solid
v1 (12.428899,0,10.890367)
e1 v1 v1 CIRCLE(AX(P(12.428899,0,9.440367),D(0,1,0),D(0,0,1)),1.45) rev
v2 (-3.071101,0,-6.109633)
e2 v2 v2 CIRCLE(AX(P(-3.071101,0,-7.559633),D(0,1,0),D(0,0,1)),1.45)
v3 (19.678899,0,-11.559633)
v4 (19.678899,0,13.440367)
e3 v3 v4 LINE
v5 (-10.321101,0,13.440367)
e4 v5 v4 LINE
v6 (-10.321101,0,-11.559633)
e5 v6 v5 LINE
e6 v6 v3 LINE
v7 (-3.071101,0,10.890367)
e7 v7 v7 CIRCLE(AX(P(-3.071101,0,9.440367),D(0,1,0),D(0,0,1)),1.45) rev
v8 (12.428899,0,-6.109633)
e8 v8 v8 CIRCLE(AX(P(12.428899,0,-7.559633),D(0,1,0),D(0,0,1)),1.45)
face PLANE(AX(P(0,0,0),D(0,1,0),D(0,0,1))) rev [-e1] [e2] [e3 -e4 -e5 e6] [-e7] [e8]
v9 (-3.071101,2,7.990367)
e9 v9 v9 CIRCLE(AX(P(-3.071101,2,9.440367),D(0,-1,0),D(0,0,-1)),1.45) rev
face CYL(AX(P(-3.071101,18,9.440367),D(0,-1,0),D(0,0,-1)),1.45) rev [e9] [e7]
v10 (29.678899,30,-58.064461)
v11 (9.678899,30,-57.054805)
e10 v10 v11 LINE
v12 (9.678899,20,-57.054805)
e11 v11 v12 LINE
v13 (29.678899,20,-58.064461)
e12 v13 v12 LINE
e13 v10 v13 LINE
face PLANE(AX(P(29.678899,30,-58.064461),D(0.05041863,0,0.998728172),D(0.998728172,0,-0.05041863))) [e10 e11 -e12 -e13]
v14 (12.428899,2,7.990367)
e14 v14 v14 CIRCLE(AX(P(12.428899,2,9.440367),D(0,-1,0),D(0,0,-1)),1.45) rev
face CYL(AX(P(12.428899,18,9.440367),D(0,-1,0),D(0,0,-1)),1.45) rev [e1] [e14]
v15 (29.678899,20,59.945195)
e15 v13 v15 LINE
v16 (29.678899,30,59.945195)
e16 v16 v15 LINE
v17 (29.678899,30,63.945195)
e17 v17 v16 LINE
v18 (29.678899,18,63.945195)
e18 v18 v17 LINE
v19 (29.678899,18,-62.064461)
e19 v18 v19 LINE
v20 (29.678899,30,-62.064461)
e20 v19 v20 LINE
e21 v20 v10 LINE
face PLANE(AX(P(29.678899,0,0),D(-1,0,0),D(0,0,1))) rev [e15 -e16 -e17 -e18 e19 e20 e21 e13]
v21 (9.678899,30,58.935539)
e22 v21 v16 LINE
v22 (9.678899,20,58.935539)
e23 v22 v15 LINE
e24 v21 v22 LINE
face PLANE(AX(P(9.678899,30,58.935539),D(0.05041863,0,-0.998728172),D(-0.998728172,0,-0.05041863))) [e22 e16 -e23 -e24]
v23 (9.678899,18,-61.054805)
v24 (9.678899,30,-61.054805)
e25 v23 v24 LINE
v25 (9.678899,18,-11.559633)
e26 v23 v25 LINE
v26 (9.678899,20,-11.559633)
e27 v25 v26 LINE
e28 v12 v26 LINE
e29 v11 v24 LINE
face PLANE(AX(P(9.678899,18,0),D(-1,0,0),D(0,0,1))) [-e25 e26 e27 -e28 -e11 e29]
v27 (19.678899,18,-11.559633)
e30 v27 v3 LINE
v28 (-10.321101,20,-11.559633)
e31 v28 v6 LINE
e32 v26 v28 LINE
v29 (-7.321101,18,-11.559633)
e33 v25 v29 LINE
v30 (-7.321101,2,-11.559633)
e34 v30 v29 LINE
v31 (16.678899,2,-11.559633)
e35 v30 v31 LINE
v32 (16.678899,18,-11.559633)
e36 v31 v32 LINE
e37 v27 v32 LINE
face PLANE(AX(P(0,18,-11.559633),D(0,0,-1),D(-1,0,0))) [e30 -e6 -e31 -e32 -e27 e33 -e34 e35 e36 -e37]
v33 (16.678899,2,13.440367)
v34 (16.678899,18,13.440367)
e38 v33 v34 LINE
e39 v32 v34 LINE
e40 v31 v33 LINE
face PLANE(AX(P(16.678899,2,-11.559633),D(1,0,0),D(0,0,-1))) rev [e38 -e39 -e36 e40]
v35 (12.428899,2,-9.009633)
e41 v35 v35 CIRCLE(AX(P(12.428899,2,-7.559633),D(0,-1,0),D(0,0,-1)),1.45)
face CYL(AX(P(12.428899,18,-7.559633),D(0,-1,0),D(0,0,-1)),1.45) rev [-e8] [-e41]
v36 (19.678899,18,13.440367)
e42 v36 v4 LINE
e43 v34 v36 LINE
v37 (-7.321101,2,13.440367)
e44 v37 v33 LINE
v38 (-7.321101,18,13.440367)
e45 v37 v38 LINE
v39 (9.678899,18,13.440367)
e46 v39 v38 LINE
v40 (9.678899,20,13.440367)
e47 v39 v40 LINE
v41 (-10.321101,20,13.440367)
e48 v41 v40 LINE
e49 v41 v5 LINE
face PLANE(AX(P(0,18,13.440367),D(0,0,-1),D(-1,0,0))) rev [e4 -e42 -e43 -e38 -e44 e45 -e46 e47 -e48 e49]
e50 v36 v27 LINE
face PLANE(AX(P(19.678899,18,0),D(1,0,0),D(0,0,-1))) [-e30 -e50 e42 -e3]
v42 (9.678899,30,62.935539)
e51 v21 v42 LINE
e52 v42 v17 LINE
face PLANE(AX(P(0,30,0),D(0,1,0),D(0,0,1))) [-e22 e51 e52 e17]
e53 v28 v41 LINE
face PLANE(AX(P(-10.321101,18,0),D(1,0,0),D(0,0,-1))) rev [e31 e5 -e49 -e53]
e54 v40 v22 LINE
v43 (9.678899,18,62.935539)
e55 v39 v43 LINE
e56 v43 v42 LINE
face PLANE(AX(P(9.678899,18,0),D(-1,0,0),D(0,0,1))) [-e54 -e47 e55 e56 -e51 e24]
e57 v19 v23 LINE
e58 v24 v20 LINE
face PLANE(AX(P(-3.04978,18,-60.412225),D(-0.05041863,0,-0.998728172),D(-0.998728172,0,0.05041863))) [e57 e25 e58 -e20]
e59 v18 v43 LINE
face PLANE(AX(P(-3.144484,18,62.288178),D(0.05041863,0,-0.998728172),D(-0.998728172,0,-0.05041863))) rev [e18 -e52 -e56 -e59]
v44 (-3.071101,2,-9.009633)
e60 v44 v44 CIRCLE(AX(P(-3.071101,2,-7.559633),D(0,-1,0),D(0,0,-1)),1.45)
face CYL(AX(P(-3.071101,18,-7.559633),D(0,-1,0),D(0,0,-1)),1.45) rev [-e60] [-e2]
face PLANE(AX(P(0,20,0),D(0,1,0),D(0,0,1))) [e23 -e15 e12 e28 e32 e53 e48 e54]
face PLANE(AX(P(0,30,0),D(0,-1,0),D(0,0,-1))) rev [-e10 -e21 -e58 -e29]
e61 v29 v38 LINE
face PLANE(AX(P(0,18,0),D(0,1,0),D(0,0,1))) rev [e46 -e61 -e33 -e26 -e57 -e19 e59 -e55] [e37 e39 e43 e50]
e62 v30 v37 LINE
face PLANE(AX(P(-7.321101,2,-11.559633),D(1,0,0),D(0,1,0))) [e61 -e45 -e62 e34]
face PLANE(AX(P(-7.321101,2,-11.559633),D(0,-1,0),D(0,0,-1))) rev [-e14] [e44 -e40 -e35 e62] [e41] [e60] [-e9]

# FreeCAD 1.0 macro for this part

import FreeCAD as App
import Part
import Sketcher
Q = App.Units.Quantity

doc = App.newDocument("Part")
body = doc.addObject("PartDesign::Body", "Body")

# Sketch on XZ plane
sketch1 = body.newObject("Sketcher::SketchObject", "Sketch")
sketch1.AttachmentSupport = (doc.getObject("XZ_Plane"), [""])
sketch1.MapMode = "FlatFace"
sketch1.addGeometry(Part.LineSegment(App.Vector(-10.3, -11.6, 0), App.Vector(-10.3, 13.4, 0)), False)
sketch1.addGeometry(Part.LineSegment(App.Vector(-10.3, 13.4, 0), App.Vector(19.7, 13.4, 0)), False)
sketch1.addGeometry(Part.LineSegment(App.Vector(19.7, 13.4, 0), App.Vector(19.7, -11.6, 0)), False)
sketch1.addGeometry(Part.LineSegment(App.Vector(19.7, -11.6, 0), App.Vector(-10.3, -11.6, 0)), False)
sketch1.addGeometry(Part.Circle(App.Vector(-3.1, 9.4, 0), App.Vector(0, 0, 1), 1.4), False)
sketch1.addGeometry(Part.Circle(App.Vector(12.4, 9.4, 0), App.Vector(0, 0, 1), 1.4), False)
sketch1.addGeometry(Part.Circle(App.Vector(-3.1, -7.6, 0), App.Vector(0, 0, 1), 1.4), False)
sketch1.addGeometry(Part.Circle(App.Vector(12.4, -7.6, 0), App.Vector(0, 0, 1), 1.4), False)
sketch1.addConstraint(Sketcher.Constraint("Coincident", 0, 2, 1, 1))
sketch1.addConstraint(Sketcher.Constraint("Coincident", 1, 2, 2, 1))
sketch1.addConstraint(Sketcher.Constraint("Coincident", 2, 2, 3, 1))
sketch1.addConstraint(Sketcher.Constraint("Coincident", 3, 2, 0, 1))
sketch1.addConstraint(Sketcher.Constraint("Vertical", 0))
sketch1.addConstraint(Sketcher.Constraint("Horizontal", 1))
sketch1.addConstraint(Sketcher.Constraint("Vertical", 2))
sketch1.addConstraint(Sketcher.Constraint("Horizontal", 3))
sketch1.addConstraint(Sketcher.Constraint("Equal", 4, 5))
sketch1.addConstraint(Sketcher.Constraint("Equal", 5, 6))
sketch1.addConstraint(Sketcher.Constraint("Equal", 6, 7))
sketch1.addConstraint(Sketcher.Constraint("Horizontal", 4, 3, 5, 3))
sketch1.addConstraint(Sketcher.Constraint("Horizontal", 6, 3, 7, 3))
sketch1.addConstraint(Sketcher.Constraint("Vertical", 4, 3, 6, 3))
sketch1.addConstraint(Sketcher.Constraint("Vertical", 5, 3, 7, 3))
sketch1.addConstraint(Sketcher.Constraint("Diameter", 4, 2.9))
sketch1.addConstraint(Sketcher.Constraint("DistanceX", 1, 1, 1, 2, 30.0))
sketch1.addConstraint(Sketcher.Constraint("DistanceY", 0, 1, 0, 2, 25.0))
sketch1.addConstraint(Sketcher.Constraint("DistanceY", 6, 3, 4, 3, 17.0))
sketch1.addConstraint(Sketcher.Constraint("DistanceY", 4, 3, 0, 2, 4.0))
sketch1.addConstraint(Sketcher.Constraint("DistanceX", 4, 3, 5, 3, 15.5))
sketch1.addConstraint(Sketcher.Constraint("DistanceX", 0, 2, 4, 3, 7.25))
sketch1.addConstraint(Sketcher.Constraint("DistanceX", 4, 3, -1, 1, 3.071101))
sketch1.addConstraint(Sketcher.Constraint("DistanceY", -1, 1, 4, 3, 9.440367))
pad1 = body.newObject("PartDesign::Pad", "Pad")
pad1.Profile = sketch1
pad1.Length = 18
pad1.Reversed = True

# Sketch on XZ plane
sketch2 = body.newObject("Sketcher::SketchObject", "Sketch001")
sketch2.AttachmentSupport = (doc.getObject("XZ_Plane"), [""])
sketch2.MapMode = "FlatFace"
sketch2.AttachmentOffset = App.Placement(App.Vector(0, 0, -18), App.Rotation())
sketch2.addGeometry(Part.LineSegment(App.Vector(-10, -12, 0), App.Vector(-10, 13, 0)), False)
sketch2.addGeometry(Part.LineSegment(App.Vector(-10, 13, 0), App.Vector(20, 13, 0)), False)
sketch2.addGeometry(Part.LineSegment(App.Vector(20, 13, 0), App.Vector(20, -12, 0)), False)
sketch2.addGeometry(Part.LineSegment(App.Vector(20, -12, 0), App.Vector(-10, -12, 0)), False)
sketch2.addConstraint(Sketcher.Constraint("Coincident", 0, 2, 1, 1))
sketch2.addConstraint(Sketcher.Constraint("Coincident", 1, 2, 2, 1))
sketch2.addConstraint(Sketcher.Constraint("Coincident", 2, 2, 3, 1))
sketch2.addConstraint(Sketcher.Constraint("Coincident", 3, 2, 0, 1))
sketch2.addConstraint(Sketcher.Constraint("Vertical", 0))
sketch2.addConstraint(Sketcher.Constraint("Horizontal", 1))
sketch2.addConstraint(Sketcher.Constraint("Vertical", 2))
sketch2.addConstraint(Sketcher.Constraint("Horizontal", 3))
sketch2.addConstraint(Sketcher.Constraint("DistanceX", 1, 1, 1, 2, 30.0))
sketch2.addConstraint(Sketcher.Constraint("DistanceY", 0, 1, 0, 2, 25.0))
sketch2.addConstraint(Sketcher.Constraint("DistanceX", 0, 2, -1, 1, 10.321101))
sketch2.addConstraint(Sketcher.Constraint("DistanceY", -1, 1, 0, 2, 13.440367))
pad2 = body.newObject("PartDesign::Pad", "Pad001")
pad2.Profile = sketch2
pad2.Length = 2
pad2.Reversed = True

# Sketch on XY plane
sketch3 = body.newObject("Sketcher::SketchObject", "Sketch002")
sketch3.AttachmentSupport = (doc.getObject("XY_Plane"), [""])
sketch3.MapMode = "FlatFace"
sketch3.AttachmentOffset = App.Placement(App.Vector(0, 0, 13.440367), App.Rotation())
sketch3.addGeometry(Part.LineSegment(App.Vector(-7, 18, 0), App.Vector(-7, 2, 0)), False)
sketch3.addGeometry(Part.LineSegment(App.Vector(-7, 2, 0), App.Vector(17, 2, 0)), False)
sketch3.addGeometry(Part.LineSegment(App.Vector(17, 2, 0), App.Vector(17, 18, 0)), False)
sketch3.addGeometry(Part.LineSegment(App.Vector(17, 18, 0), App.Vector(-7, 18, 0)), False)
sketch3.addConstraint(Sketcher.Constraint("Coincident", 0, 2, 1, 1))
sketch3.addConstraint(Sketcher.Constraint("Coincident", 1, 2, 2, 1))
sketch3.addConstraint(Sketcher.Constraint("Coincident", 2, 2, 3, 1))
sketch3.addConstraint(Sketcher.Constraint("Coincident", 3, 2, 0, 1))
sketch3.addConstraint(Sketcher.Constraint("Vertical", 0))
sketch3.addConstraint(Sketcher.Constraint("Horizontal", 1))
sketch3.addConstraint(Sketcher.Constraint("Vertical", 2))
sketch3.addConstraint(Sketcher.Constraint("Horizontal", 3))
sketch3.addConstraint(Sketcher.Constraint("DistanceX", 1, 1, 1, 2, 24.0))
sketch3.addConstraint(Sketcher.Constraint("DistanceY", 0, 2, 0, 1, 16.0))
sketch3.addConstraint(Sketcher.Constraint("DistanceY", -1, 1, 0, 2, 2.0))
sketch3.addConstraint(Sketcher.Constraint("DistanceX", 0, 2, -1, 1, 7.321101))
pocket1 = body.newObject("PartDesign::Pocket", "Pocket")
pocket1.Profile = sketch3
pocket1.Type = "ThroughAll"

# Sketch on YZ plane
sketch4 = body.newObject("Sketcher::SketchObject", "Sketch003")
sketch4.AttachmentSupport = (doc.getObject("YZ_Plane"), [""])
sketch4.MapMode = "FlatFace"
sketch4.AttachmentOffset = App.Placement(App.Vector(0, 0, 19.678899), App.Rotation())
sketch4.addGeometry(Part.LineSegment(App.Vector(20, 13.4, 0), App.Vector(18, 13.4, 0)), False)
sketch4.addGeometry(Part.LineSegment(App.Vector(18, 13.4, 0), App.Vector(18, -11.6, 0)), False)
sketch4.addGeometry(Part.LineSegment(App.Vector(18, -11.6, 0), App.Vector(20, -11.6, 0)), False)
sketch4.addGeometry(Part.LineSegment(App.Vector(20, -11.6, 0), App.Vector(20, 13.4, 0)), False)
sketch4.addConstraint(Sketcher.Constraint("Coincident", 0, 2, 1, 1))
sketch4.addConstraint(Sketcher.Constraint("Coincident", 1, 2, 2, 1))
sketch4.addConstraint(Sketcher.Constraint("Coincident", 2, 2, 3, 1))
sketch4.addConstraint(Sketcher.Constraint("Coincident", 3, 2, 0, 1))
sketch4.addConstraint(Sketcher.Constraint("Horizontal", 0))
sketch4.addConstraint(Sketcher.Constraint("Vertical", 1))
sketch4.addConstraint(Sketcher.Constraint("Horizontal", 2))
sketch4.addConstraint(Sketcher.Constraint("Vertical", 3))
sketch4.addConstraint(Sketcher.Constraint("DistanceX", 0, 2, 0, 1, 2.0))
sketch4.addConstraint(Sketcher.Constraint("DistanceY", 1, 2, 1, 1, 25.0))
sketch4.addConstraint(Sketcher.Constraint("DistanceX", -1, 1, 0, 2, 18.0))
sketch4.addConstraint(Sketcher.Constraint("DistanceY", -1, 1, 0, 2, 13.440367))
pad3 = body.newObject("PartDesign::Pad", "Pad002")
pad3.Profile = sketch4
pad3.Length = 10

# Sketch on XZ plane
sketch5 = body.newObject("Sketcher::SketchObject", "Sketch004")
sketch5.AttachmentSupport = (doc.getObject("XZ_Plane"), [""])
sketch5.MapMode = "FlatFace"
sketch5.AttachmentOffset = App.Placement(App.Vector(0, 0, -20), App.Rotation())
sketch5.addGeometry(Part.LineSegment(App.Vector(20, -62, 0), App.Vector(10, -61, 0)), False)
sketch5.addGeometry(Part.LineSegment(App.Vector(10, -61, 0), App.Vector(10, -12, 0)), False)
sketch5.addGeometry(Part.LineSegment(App.Vector(10, -12, 0), App.Vector(30, -12, 0)), False)
sketch5.addGeometry(Part.LineSegment(App.Vector(30, -12, 0), App.Vector(30, -62, 0)), False)
sketch5.addGeometry(Part.LineSegment(App.Vector(30, -62, 0), App.Vector(20, -62, 0)), False)
sketch5.addGeometry(Part.LineSegment(App.Vector(30, 13, 0), App.Vector(10, 13, 0)), False)
sketch5.addGeometry(Part.LineSegment(App.Vector(10, 13, 0), App.Vector(10, 63, 0)), False)
sketch5.addGeometry(Part.LineSegment(App.Vector(10, 63, 0), App.Vector(20, 63, 0)), False)
sketch5.addGeometry(Part.LineSegment(App.Vector(20, 63, 0), App.Vector(30, 64, 0)), False)
sketch5.addGeometry(Part.LineSegment(App.Vector(30, 64, 0), App.Vector(30, 13, 0)), False)
sketch5.addConstraint(Sketcher.Constraint("Coincident", 0, 2, 1, 1))
sketch5.addConstraint(Sketcher.Constraint("Coincident", 1, 2, 2, 1))
sketch5.addConstraint(Sketcher.Constraint("Coincident", 2, 2, 3, 1))
sketch5.addConstraint(Sketcher.Constraint("Coincident", 3, 2, 4, 1))
sketch5.addConstraint(Sketcher.Constraint("Coincident", 4, 2, 0, 1))
sketch5.addConstraint(Sketcher.Constraint("Coincident", 5, 2, 6, 1))
sketch5.addConstraint(Sketcher.Constraint("Coincident", 6, 2, 7, 1))
sketch5.addConstraint(Sketcher.Constraint("Coincident", 7, 2, 8, 1))
sketch5.addConstraint(Sketcher.Constraint("Coincident", 8, 2, 9, 1))
sketch5.addConstraint(Sketcher.Constraint("Coincident", 9, 2, 5, 1))
sketch5.addConstraint(Sketcher.Constraint("Vertical", 1))
sketch5.addConstraint(Sketcher.Constraint("Horizontal", 2))
sketch5.addConstraint(Sketcher.Constraint("Vertical", 3))
sketch5.addConstraint(Sketcher.Constraint("Horizontal", 5))
sketch5.addConstraint(Sketcher.Constraint("Vertical", 6))
sketch5.addConstraint(Sketcher.Constraint("Vertical", 9))
sketch5.addConstraint(Sketcher.Constraint("Parallel", 0, 4))
sketch5.addConstraint(Sketcher.Constraint("Parallel", 7, 8))
sketch5.addConstraint(Sketcher.Constraint("Vertical", 1, 2, 5, 2))
sketch5.addConstraint(Sketcher.Constraint("Vertical", 4, 2, 7, 2))
sketch5.addConstraint(Sketcher.Constraint("Vertical", 3, 2, 8, 2))
sketch5.addConstraint(Sketcher.Constraint("Equal", 1, 6))
sketch5.addConstraint(Sketcher.Constraint("Equal", 3, 9))
sketch5.addConstraint(Sketcher.Constraint("Equal", 0, 4))
sketch5.addConstraint(Sketcher.Constraint("DistanceX", 2, 1, 2, 2, 20.0))
sketch5.addConstraint(Sketcher.Constraint("DistanceY", 4, 2, 1, 2, 50.0))
sketch5.addConstraint(Sketcher.Constraint("DistanceY", 1, 2, 5, 2, 25.0))
sketch5.addConstraint(Sketcher.Constraint("Angle", 0, Q("177.11 deg")))
sketch5.addConstraint(Sketcher.Constraint("DistanceX", -1, 1, 0, 2, 9.678899))
sketch5.addConstraint(Sketcher.Constraint("DistanceY", 3, 2, -1, 1, 62.064461))
pad4 = body.newObject("PartDesign::Pad", "Pad003")
pad4.Profile = sketch5
pad4.Length = 2

# Sketch on XZ plane
sketch6 = body.newObject("Sketcher::SketchObject", "Sketch005")
sketch6.AttachmentSupport = (doc.getObject("XZ_Plane"), [""])
sketch6.MapMode = "FlatFace"
sketch6.AttachmentOffset = App.Placement(App.Vector(0, 0, -20), App.Rotation())
sketch6.addGeometry(Part.LineSegment(App.Vector(29.7, -62.1, 0), App.Vector(9.7, -61.1, 0)), False)
sketch6.addGeometry(Part.LineSegment(App.Vector(9.7, -61.1, 0), App.Vector(9.7, -57.1, 0)), False)
sketch6.addGeometry(Part.LineSegment(App.Vector(9.7, -57.1, 0), App.Vector(29.7, -58.1, 0)), False)
sketch6.addGeometry(Part.LineSegment(App.Vector(29.7, -58.1, 0), App.Vector(29.7, -62.1, 0)), False)
sketch6.addGeometry(Part.LineSegment(App.Vector(29.7, 59.9, 0), App.Vector(9.7, 58.9, 0)), False)
sketch6.addGeometry(Part.LineSegment(App.Vector(9.7, 58.9, 0), App.Vector(9.7, 62.9, 0)), False)
sketch6.addGeometry(Part.LineSegment(App.Vector(9.7, 62.9, 0), App.Vector(29.7, 63.9, 0)), False)
sketch6.addGeometry(Part.LineSegment(App.Vector(29.7, 63.9, 0), App.Vector(29.7, 59.9, 0)), False)
sketch6.addConstraint(Sketcher.Constraint("Coincident", 0, 2, 1, 1))
sketch6.addConstraint(Sketcher.Constraint("Coincident", 1, 2, 2, 1))
sketch6.addConstraint(Sketcher.Constraint("Coincident", 2, 2, 3, 1))
sketch6.addConstraint(Sketcher.Constraint("Coincident", 3, 2, 0, 1))
sketch6.addConstraint(Sketcher.Constraint("Coincident", 4, 2, 5, 1))
sketch6.addConstraint(Sketcher.Constraint("Coincident", 5, 2, 6, 1))
sketch6.addConstraint(Sketcher.Constraint("Coincident", 6, 2, 7, 1))
sketch6.addConstraint(Sketcher.Constraint("Coincident", 7, 2, 4, 1))
sketch6.addConstraint(Sketcher.Constraint("Vertical", 1))
sketch6.addConstraint(Sketcher.Constraint("Vertical", 3))
sketch6.addConstraint(Sketcher.Constraint("Vertical", 5))
sketch6.addConstraint(Sketcher.Constraint("Vertical", 7))
sketch6.addConstraint(Sketcher.Constraint("Parallel", 0, 2))
sketch6.addConstraint(Sketcher.Constraint("Parallel", 4, 6))
sketch6.addConstraint(Sketcher.Constraint("Vertical", 1, 2, 4, 2))
sketch6.addConstraint(Sketcher.Constraint("Vertical", 3, 2, 6, 2))
sketch6.addConstraint(Sketcher.Constraint("Equal", 3, 5))
sketch6.addConstraint(Sketcher.Constraint("Equal", 2, 4))
sketch6.addConstraint(Sketcher.Constraint("DistanceY", 1, 1, 1, 2, 4.0))
sketch6.addConstraint(Sketcher.Constraint("DistanceX", 1, 2, 2, 2, 20.0))
sketch6.addConstraint(Sketcher.Constraint("DistanceY", 2, 2, 4, 2, 117.0))
sketch6.addConstraint(Sketcher.Constraint("Angle", 0, Q("177.11 deg")))
sketch6.addConstraint(Sketcher.Constraint("DistanceX", -1, 1, 0, 2, 9.678899))
sketch6.addConstraint(Sketcher.Constraint("DistanceY", 2, 2, -1, 1, 58.064461))
pad5 = body.newObject("PartDesign::Pad", "Pad004")
pad5.Profile = sketch6
pad5.Length = 10
pad5.Reversed = True

doc.recompute()
